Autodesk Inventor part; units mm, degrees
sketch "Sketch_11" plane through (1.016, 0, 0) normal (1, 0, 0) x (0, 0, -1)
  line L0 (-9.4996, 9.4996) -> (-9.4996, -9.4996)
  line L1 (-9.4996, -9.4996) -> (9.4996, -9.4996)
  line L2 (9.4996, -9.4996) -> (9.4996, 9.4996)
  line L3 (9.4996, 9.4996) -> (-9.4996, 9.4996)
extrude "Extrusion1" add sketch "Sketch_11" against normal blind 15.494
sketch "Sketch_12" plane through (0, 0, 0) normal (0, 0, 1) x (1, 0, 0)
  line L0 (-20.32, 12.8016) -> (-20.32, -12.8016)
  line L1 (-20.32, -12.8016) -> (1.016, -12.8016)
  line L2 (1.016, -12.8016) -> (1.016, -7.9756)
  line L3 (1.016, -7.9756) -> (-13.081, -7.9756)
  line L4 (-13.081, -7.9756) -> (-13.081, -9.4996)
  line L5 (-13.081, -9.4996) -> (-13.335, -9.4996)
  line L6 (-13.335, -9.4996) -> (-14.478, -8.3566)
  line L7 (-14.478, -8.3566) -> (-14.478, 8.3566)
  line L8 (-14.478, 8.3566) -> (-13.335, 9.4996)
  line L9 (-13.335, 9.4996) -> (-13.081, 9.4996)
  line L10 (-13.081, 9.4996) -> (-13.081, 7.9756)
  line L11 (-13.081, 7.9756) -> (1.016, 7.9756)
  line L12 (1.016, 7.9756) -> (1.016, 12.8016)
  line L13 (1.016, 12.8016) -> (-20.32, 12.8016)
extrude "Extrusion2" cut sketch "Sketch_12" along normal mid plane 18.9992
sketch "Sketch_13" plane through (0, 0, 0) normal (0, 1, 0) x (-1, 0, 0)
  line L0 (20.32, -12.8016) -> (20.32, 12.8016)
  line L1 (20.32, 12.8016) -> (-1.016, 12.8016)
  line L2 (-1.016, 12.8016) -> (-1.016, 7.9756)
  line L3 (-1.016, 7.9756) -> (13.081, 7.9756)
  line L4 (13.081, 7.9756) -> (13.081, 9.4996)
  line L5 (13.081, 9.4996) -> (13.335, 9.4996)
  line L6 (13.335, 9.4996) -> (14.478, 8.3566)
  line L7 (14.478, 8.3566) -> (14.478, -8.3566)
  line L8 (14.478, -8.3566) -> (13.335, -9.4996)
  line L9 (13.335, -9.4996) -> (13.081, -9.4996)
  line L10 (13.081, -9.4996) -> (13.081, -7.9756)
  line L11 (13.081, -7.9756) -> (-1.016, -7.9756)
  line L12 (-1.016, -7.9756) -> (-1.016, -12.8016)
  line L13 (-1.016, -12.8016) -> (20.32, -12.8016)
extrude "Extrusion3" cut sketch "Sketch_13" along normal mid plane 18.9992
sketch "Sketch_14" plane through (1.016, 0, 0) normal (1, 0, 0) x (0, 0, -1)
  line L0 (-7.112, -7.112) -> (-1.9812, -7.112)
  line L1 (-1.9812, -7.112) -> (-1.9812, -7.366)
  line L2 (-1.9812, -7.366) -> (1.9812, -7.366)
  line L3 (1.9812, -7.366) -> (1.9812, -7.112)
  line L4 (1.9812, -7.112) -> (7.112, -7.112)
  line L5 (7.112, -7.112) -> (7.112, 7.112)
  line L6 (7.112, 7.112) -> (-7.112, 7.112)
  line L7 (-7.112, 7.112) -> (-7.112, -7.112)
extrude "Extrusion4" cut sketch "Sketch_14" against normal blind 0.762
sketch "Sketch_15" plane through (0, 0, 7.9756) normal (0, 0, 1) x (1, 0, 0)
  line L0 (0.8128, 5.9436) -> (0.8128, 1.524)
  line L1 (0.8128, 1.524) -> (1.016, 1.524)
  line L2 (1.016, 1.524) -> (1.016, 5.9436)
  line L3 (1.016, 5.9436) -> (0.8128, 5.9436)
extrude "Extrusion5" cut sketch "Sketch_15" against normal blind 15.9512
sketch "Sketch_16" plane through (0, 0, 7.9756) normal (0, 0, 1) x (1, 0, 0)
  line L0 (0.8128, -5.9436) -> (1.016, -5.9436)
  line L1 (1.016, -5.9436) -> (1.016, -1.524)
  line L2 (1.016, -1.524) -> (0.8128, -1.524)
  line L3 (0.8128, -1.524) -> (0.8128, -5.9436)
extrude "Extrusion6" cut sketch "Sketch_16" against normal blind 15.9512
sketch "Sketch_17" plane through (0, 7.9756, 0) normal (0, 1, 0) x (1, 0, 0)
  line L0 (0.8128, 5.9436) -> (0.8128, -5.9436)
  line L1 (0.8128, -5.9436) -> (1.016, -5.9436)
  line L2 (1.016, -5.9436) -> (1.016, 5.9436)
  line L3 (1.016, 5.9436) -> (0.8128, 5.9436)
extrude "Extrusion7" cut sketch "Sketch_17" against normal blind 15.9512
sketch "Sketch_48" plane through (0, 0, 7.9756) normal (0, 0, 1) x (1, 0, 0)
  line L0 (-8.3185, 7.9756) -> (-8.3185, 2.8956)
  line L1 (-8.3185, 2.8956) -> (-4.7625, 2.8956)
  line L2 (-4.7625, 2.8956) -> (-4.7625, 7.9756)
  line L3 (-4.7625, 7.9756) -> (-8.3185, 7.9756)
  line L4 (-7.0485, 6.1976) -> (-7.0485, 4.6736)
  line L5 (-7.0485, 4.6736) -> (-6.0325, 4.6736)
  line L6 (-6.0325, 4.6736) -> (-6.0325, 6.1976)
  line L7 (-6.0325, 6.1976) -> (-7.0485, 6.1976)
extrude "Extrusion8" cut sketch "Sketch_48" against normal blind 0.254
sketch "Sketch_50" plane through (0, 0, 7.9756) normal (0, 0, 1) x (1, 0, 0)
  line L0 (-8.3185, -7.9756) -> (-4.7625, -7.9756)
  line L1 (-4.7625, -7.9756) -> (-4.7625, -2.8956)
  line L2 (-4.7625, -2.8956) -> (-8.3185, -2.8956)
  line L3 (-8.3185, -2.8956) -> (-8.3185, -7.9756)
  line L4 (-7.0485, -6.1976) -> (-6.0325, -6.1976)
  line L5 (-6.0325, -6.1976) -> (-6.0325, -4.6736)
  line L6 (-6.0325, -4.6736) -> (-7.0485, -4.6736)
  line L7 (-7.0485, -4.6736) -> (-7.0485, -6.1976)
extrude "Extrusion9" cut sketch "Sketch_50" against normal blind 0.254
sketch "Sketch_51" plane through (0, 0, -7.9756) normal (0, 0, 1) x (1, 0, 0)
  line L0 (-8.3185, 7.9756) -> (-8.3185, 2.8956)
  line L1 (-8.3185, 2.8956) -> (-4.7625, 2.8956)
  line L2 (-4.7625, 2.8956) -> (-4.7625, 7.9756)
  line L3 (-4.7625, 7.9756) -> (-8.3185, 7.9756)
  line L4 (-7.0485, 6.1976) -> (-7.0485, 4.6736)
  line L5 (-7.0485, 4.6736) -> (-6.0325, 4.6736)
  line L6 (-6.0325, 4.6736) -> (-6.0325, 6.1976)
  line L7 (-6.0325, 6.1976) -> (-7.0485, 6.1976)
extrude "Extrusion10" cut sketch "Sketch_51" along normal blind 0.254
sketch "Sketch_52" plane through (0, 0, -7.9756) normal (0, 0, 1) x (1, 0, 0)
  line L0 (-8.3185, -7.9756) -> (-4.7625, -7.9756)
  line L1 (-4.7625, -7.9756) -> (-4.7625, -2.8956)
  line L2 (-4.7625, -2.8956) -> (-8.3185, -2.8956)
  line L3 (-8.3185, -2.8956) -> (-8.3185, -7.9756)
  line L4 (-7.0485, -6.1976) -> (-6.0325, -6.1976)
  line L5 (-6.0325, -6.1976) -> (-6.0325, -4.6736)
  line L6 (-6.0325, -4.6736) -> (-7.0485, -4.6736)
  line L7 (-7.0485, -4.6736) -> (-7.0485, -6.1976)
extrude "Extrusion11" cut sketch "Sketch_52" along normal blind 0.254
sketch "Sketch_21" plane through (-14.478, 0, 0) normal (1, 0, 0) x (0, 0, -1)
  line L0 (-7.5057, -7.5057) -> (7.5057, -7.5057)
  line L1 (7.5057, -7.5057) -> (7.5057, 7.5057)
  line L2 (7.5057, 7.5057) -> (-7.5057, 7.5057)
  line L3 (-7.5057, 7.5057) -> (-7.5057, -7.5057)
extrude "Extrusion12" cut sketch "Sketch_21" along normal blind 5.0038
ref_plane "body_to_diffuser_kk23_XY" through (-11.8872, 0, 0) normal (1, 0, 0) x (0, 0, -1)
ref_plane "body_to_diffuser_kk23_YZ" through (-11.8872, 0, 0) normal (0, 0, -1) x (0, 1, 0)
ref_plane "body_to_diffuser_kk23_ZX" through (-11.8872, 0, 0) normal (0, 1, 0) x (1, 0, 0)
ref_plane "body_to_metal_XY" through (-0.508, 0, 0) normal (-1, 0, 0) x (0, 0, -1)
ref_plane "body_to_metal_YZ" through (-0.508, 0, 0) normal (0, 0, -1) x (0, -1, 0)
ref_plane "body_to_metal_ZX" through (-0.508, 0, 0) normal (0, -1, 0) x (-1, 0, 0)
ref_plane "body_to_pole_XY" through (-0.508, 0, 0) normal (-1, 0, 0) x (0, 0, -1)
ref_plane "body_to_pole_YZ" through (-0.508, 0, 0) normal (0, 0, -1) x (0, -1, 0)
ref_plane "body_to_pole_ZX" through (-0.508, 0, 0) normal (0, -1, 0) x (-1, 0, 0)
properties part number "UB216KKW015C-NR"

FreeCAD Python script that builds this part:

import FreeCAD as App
import Part
import Sketcher
from FreeCAD import Vector
Q = App.Units.Quantity


def add_polygon(sketch, points):
    """Adds a closed chain of lines whose ends are joined by coincident constraints."""
    first, n = sketch.GeometryCount, len(points)
    for a, b in zip(points, points[1:] + points[:1]):
        sketch.addGeometry(Part.LineSegment(App.Vector(*a, 0), App.Vector(*b, 0)), False)
    for i in range(n):
        sketch.addConstraint(Sketcher.Constraint("Coincident", first + i, 2, first + (i + 1) % n, 1))

doc = App.newDocument("Part")
params = doc.addObject("Spreadsheet::Sheet", "Params")
for row, (alias, value) in enumerate([
    ("sketch1_width", "0.748 in"),
    ("pad1_length", "0.61 in"),
    ("sketch2_width", "0.84 in"),
    ("sketch2_width2", "0.01 in"),
    ("sketch2_height", "0.19 in"),
    ("sketch2_height2", "0.06 in"),
    ("sketch2_width3", "0.555 in"),
    ("pocket1_length", "0.748 in"),
    ("sketch3_width", "0.84 in"),
    ("sketch3_width2", "0.01 in"),
    ("sketch3_height", "0.19 in"),
    ("sketch3_height2", "0.06 in"),
    ("sketch3_width3", "0.555 in"),
    ("pocket2_length", "0.748 in"),
    ("sketch4_width", "0.56 in"),
    ("sketch4_width2", "0.01 in"),
    ("sketch4_height", "0.202 in"),
    ("pocket3_length", "0.03 in"),
    ("sketch5_width", "0.008 in"),
    ("sketch5_height", "0.174 in"),
    ("pocket4_length", "0.628 in"),
    ("sketch6_width", "0.008 in"),
    ("sketch6_height", "0.174 in"),
    ("pocket5_length", "0.628 in"),
    ("sketch7_width", "0.008 in"),
    ("sketch7_height", "0.468 in"),
    ("pocket6_length", "0.628 in"),
    ("sketch8_height", "0.2 in"),
    ("sketch8_width", "0.14 in"),
    ("sketch8_width2", "0.04 in"),
    ("sketch8_height2", "0.06 in"),
    ("pocket7_length", "0.01 in"),
    ("sketch9_height", "0.2 in"),
    ("sketch9_width", "0.14 in"),
    ("sketch9_width2", "0.04 in"),
    ("sketch9_height2", "0.06 in"),
    ("pocket8_length", "0.01 in"),
    ("sketch10_height", "0.2 in"),
    ("sketch10_width", "0.14 in"),
    ("sketch10_width2", "0.04 in"),
    ("sketch10_height2", "0.06 in"),
    ("pocket9_length", "0.01 in"),
    ("sketch11_height", "0.2 in"),
    ("sketch11_width", "0.14 in"),
    ("sketch11_width2", "0.04 in"),
    ("sketch11_height2", "0.06 in"),
    ("pocket10_length", "0.01 in"),
    ("sketch12_width", "0.591 in"),
    ("pocket11_length", "0.197 in"),
], start=1):
    params.set(f"A{row}", alias)
    params.set(f"B{row}", "=" + value)
    params.setAlias(f"B{row}", alias)

body = doc.addObject("PartDesign::Body", "Body")

sketch1 = body.newObject("Sketcher::SketchObject", "Sketch")
sketch1.AttachmentSupport = (doc.getObject("YZ_Plane"), [""])
sketch1.MapMode = "FlatFace"
sketch1.AttachmentOffset = App.Placement(Vector(0, 0, 0.04 * 25.4), App.Rotation())
add_polygon(sketch1, [(9, -9), (9, 9), (-9, 9), (-9, -9)])
sketch1.addConstraint(Sketcher.Constraint("Vertical", 0))
sketch1.addConstraint(Sketcher.Constraint("Horizontal", 1))
sketch1.addConstraint(Sketcher.Constraint("Vertical", 2))
sketch1.addConstraint(Sketcher.Constraint("Horizontal", 3))
sketch1.addConstraint(Sketcher.Constraint("Symmetric", 0, 2, 2, 2, -1, 1))
sketch1.addConstraint(Sketcher.Constraint("Equal", 3, 0))
sketch1.addConstraint(Sketcher.Constraint("DistanceX", 1, 2, 1, 1, Q("0.748 in")))
sketch1.setExpression("Constraints[10]", "Params.sketch1_width")
pad1 = body.newObject("PartDesign::Pad", "Pad")
pad1.Profile = sketch1
pad1.setExpression("Length", "Params.pad1_length")
pad1.Reversed = True

sketch2 = body.newObject("Sketcher::SketchObject", "Sketch001")
sketch2.AttachmentSupport = (doc.getObject("XY_Plane"), [""])
sketch2.MapMode = "FlatFace"
add_polygon(sketch2, [(1.02, 12.8), (-20.32, 12.8), (-20.32, -12.8), (1.02, -12.8), (1.02, -7.98), (-13.08, -7.98), (-13.08, -9.5), (-13.34, -9.5), (-14.48, -8.36), (-14.48, 8.36), (-13.34, 9.5), (-13.08, 9.5), (-13.08, 7.98), (1.02, 7.98)])
sketch2.addConstraint(Sketcher.Constraint("Horizontal", 0))
sketch2.addConstraint(Sketcher.Constraint("Vertical", 1))
sketch2.addConstraint(Sketcher.Constraint("Horizontal", 2))
sketch2.addConstraint(Sketcher.Constraint("Vertical", 3))
sketch2.addConstraint(Sketcher.Constraint("Horizontal", 4))
sketch2.addConstraint(Sketcher.Constraint("Vertical", 5))
sketch2.addConstraint(Sketcher.Constraint("Horizontal", 6))
sketch2.addConstraint(Sketcher.Constraint("Vertical", 8))
sketch2.addConstraint(Sketcher.Constraint("Horizontal", 10))
sketch2.addConstraint(Sketcher.Constraint("Vertical", 11))
sketch2.addConstraint(Sketcher.Constraint("Horizontal", 12))
sketch2.addConstraint(Sketcher.Constraint("Vertical", 13))
sketch2.addConstraint(Sketcher.Constraint("Symmetric", 6, 2, 9, 2, -1))
sketch2.addConstraint(Sketcher.Constraint("Symmetric", 4, 2, 11, 2, -1))
sketch2.addConstraint(Sketcher.Constraint("Symmetric", 2, 2, 13, 2, -1))
sketch2.addConstraint(Sketcher.Constraint("Perpendicular", 7, 9))
sketch2.addConstraint(Sketcher.Constraint("Equal", 7, 9))
sketch2.addConstraint(Sketcher.Constraint("DistanceX", 0, 2, 0, 1, Q("0.84 in")))
sketch2.addConstraint(Sketcher.Constraint("DistanceX", 6, 2, 6, 1, Q("0.01 in")))
sketch2.addConstraint(Sketcher.Constraint("DistanceY", 3, 1, 3, 2, Q("0.19 in")))
sketch2.addConstraint(Sketcher.Constraint("DistanceY", 5, 2, 5, 1, Q("0.06 in")))
sketch2.addConstraint(Sketcher.Constraint("DistanceX", 0, 2, -1, 1, Q("0.8 in")))
sketch2.addConstraint(Sketcher.Constraint("DistanceX", 4, 2, 4, 1, Q("0.555 in")))
sketch2.addConstraint(Sketcher.Constraint("DistanceY", 1, 2, 1, 1, Q("1.008 in")))
sketch2.addConstraint(Sketcher.Constraint("DistanceY", 8, 1, 8, 2, Q("0.658 in")))
sketch2.setExpression("Constraints[31]", "Params.sketch2_width")
sketch2.setExpression("Constraints[32]", "Params.sketch2_width2")
sketch2.setExpression("Constraints[33]", "Params.sketch2_height")
sketch2.setExpression("Constraints[34]", "Params.sketch2_height2")
sketch2.setExpression("Constraints[36]", "Params.sketch2_width3")
pocket1 = body.newObject("PartDesign::Pocket", "Pocket")
pocket1.Profile = sketch2
pocket1.setExpression("Length", "Params.pocket1_length")
pocket1.Midplane = True

sketch3 = body.newObject("Sketcher::SketchObject", "Sketch002")
sketch3.AttachmentSupport = (doc.getObject("XZ_Plane"), [""])
sketch3.MapMode = "FlatFace"
add_polygon(sketch3, [(1.02, -12.8), (-20.32, -12.8), (-20.32, 12.8), (1.02, 12.8), (1.02, 7.98), (-13.08, 7.98), (-13.08, 9.5), (-13.34, 9.5), (-14.48, 8.36), (-14.48, -8.36), (-13.34, -9.5), (-13.08, -9.5), (-13.08, -7.98), (1.02, -7.98)])
sketch3.addConstraint(Sketcher.Constraint("Horizontal", 0))
sketch3.addConstraint(Sketcher.Constraint("Vertical", 1))
sketch3.addConstraint(Sketcher.Constraint("Horizontal", 2))
sketch3.addConstraint(Sketcher.Constraint("Vertical", 3))
sketch3.addConstraint(Sketcher.Constraint("Horizontal", 4))
sketch3.addConstraint(Sketcher.Constraint("Vertical", 5))
sketch3.addConstraint(Sketcher.Constraint("Horizontal", 6))
sketch3.addConstraint(Sketcher.Constraint("Vertical", 8))
sketch3.addConstraint(Sketcher.Constraint("Horizontal", 10))
sketch3.addConstraint(Sketcher.Constraint("Vertical", 11))
sketch3.addConstraint(Sketcher.Constraint("Horizontal", 12))
sketch3.addConstraint(Sketcher.Constraint("Vertical", 13))
sketch3.addConstraint(Sketcher.Constraint("Symmetric", 6, 2, 9, 2, -1))
sketch3.addConstraint(Sketcher.Constraint("Symmetric", 4, 2, 11, 2, -1))
sketch3.addConstraint(Sketcher.Constraint("Symmetric", 2, 2, 13, 2, -1))
sketch3.addConstraint(Sketcher.Constraint("Perpendicular", 7, 9))
sketch3.addConstraint(Sketcher.Constraint("Equal", 7, 9))
sketch3.addConstraint(Sketcher.Constraint("DistanceX", 0, 2, 0, 1, Q("0.84 in")))
sketch3.addConstraint(Sketcher.Constraint("DistanceX", 6, 2, 6, 1, Q("0.01 in")))
sketch3.addConstraint(Sketcher.Constraint("DistanceY", 3, 2, 3, 1, Q("0.19 in")))
sketch3.addConstraint(Sketcher.Constraint("DistanceY", 5, 1, 5, 2, Q("0.06 in")))
sketch3.addConstraint(Sketcher.Constraint("DistanceX", 0, 2, -1, 1, Q("0.8 in")))
sketch3.addConstraint(Sketcher.Constraint("DistanceX", 4, 2, 4, 1, Q("0.555 in")))
sketch3.addConstraint(Sketcher.Constraint("DistanceY", 1, 1, 1, 2, Q("1.008 in")))
sketch3.addConstraint(Sketcher.Constraint("DistanceY", 8, 2, 8, 1, Q("0.658 in")))
sketch3.setExpression("Constraints[31]", "Params.sketch3_width")
sketch3.setExpression("Constraints[32]", "Params.sketch3_width2")
sketch3.setExpression("Constraints[33]", "Params.sketch3_height")
sketch3.setExpression("Constraints[34]", "Params.sketch3_height2")
sketch3.setExpression("Constraints[36]", "Params.sketch3_width3")
pocket2 = body.newObject("PartDesign::Pocket", "Pocket001")
pocket2.Profile = sketch3
pocket2.setExpression("Length", "Params.pocket2_length")
pocket2.Midplane = True

sketch4 = body.newObject("Sketcher::SketchObject", "Sketch003")
sketch4.AttachmentSupport = (doc.getObject("YZ_Plane"), [""])
sketch4.MapMode = "FlatFace"
sketch4.AttachmentOffset = App.Placement(Vector(0, 0, 0.04 * 25.4), App.Rotation())
add_polygon(sketch4, [(7.11, 7.11), (-7.11, 7.11), (-7.11, 1.98), (-7.37, 1.98), (-7.37, -1.98), (-7.11, -1.98), (-7.11, -7.11), (7.11, -7.11)])
sketch4.addConstraint(Sketcher.Constraint("Horizontal", 0))
sketch4.addConstraint(Sketcher.Constraint("Vertical", 1))
sketch4.addConstraint(Sketcher.Constraint("Horizontal", 2))
sketch4.addConstraint(Sketcher.Constraint("Vertical", 3))
sketch4.addConstraint(Sketcher.Constraint("Horizontal", 4))
sketch4.addConstraint(Sketcher.Constraint("Vertical", 5))
sketch4.addConstraint(Sketcher.Constraint("Horizontal", 6))
sketch4.addConstraint(Sketcher.Constraint("Vertical", 7))
sketch4.addConstraint(Sketcher.Constraint("Symmetric", 0, 2, 6, 2, -1, 1))
sketch4.addConstraint(Sketcher.Constraint("Symmetric", 1, 2, 4, 2, -1))
sketch4.addConstraint(Sketcher.Constraint("Equal", 6, 7))
sketch4.addConstraint(Sketcher.Constraint("DistanceX", 0, 2, 0, 1, Q("0.56 in")))
sketch4.addConstraint(Sketcher.Constraint("DistanceX", 2, 2, 2, 1, Q("0.01 in")))
sketch4.addConstraint(Sketcher.Constraint("DistanceY", 1, 2, 1, 1, Q("0.202 in")))
sketch4.setExpression("Constraints[19]", "Params.sketch4_width")
sketch4.setExpression("Constraints[20]", "Params.sketch4_width2")
sketch4.setExpression("Constraints[21]", "Params.sketch4_height")
pocket3 = body.newObject("PartDesign::Pocket", "Pocket002")
pocket3.Profile = sketch4
pocket3.setExpression("Length", "Params.pocket3_length")

sketch5 = body.newObject("Sketcher::SketchObject", "Sketch004")
sketch5.AttachmentSupport = (doc.getObject("XY_Plane"), [""])
sketch5.MapMode = "FlatFace"
sketch5.AttachmentOffset = App.Placement(Vector(0, 0, 0.314 * 25.4), App.Rotation())
add_polygon(sketch5, [(1.02, 5.94), (0.81, 5.94), (0.81, 1.52), (1.02, 1.52)])
sketch5.addConstraint(Sketcher.Constraint("Horizontal", 0))
sketch5.addConstraint(Sketcher.Constraint("Vertical", 1))
sketch5.addConstraint(Sketcher.Constraint("Horizontal", 2))
sketch5.addConstraint(Sketcher.Constraint("Vertical", 3))
sketch5.addConstraint(Sketcher.Constraint("DistanceX", 0, 2, 0, 1, Q("0.008 in")))
sketch5.addConstraint(Sketcher.Constraint("DistanceY", 1, 2, 1, 1, Q("0.174 in")))
sketch5.addConstraint(Sketcher.Constraint("DistanceY", -1, 1, 1, 2, Q("0.06 in")))
sketch5.addConstraint(Sketcher.Constraint("DistanceX", -1, 1, 2, 2, Q("0.04 in")))
sketch5.setExpression("Constraints[8]", "Params.sketch5_width")
sketch5.setExpression("Constraints[9]", "Params.sketch5_height")
pocket4 = body.newObject("PartDesign::Pocket", "Pocket003")
pocket4.Profile = sketch5
pocket4.setExpression("Length", "Params.pocket4_length")

sketch6 = body.newObject("Sketcher::SketchObject", "Sketch005")
sketch6.AttachmentSupport = (doc.getObject("XY_Plane"), [""])
sketch6.MapMode = "FlatFace"
sketch6.AttachmentOffset = App.Placement(Vector(0, 0, 0.314 * 25.4), App.Rotation())
add_polygon(sketch6, [(0.81, -1.52), (0.81, -5.94), (1.02, -5.94), (1.02, -1.52)])
sketch6.addConstraint(Sketcher.Constraint("Vertical", 0))
sketch6.addConstraint(Sketcher.Constraint("Horizontal", 1))
sketch6.addConstraint(Sketcher.Constraint("Vertical", 2))
sketch6.addConstraint(Sketcher.Constraint("Horizontal", 3))
sketch6.addConstraint(Sketcher.Constraint("DistanceX", 1, 1, 1, 2, Q("0.008 in")))
sketch6.addConstraint(Sketcher.Constraint("DistanceY", 0, 2, 0, 1, Q("0.174 in")))
sketch6.addConstraint(Sketcher.Constraint("DistanceX", -1, 1, 1, 2, Q("0.04 in")))
sketch6.addConstraint(Sketcher.Constraint("DistanceY", 2, 2, -1, 1, Q("0.06 in")))
sketch6.setExpression("Constraints[8]", "Params.sketch6_width")
sketch6.setExpression("Constraints[9]", "Params.sketch6_height")
pocket5 = body.newObject("PartDesign::Pocket", "Pocket004")
pocket5.Profile = sketch6
pocket5.setExpression("Length", "Params.pocket5_length")

sketch7 = body.newObject("Sketcher::SketchObject", "Sketch006")
sketch7.AttachmentSupport = (doc.getObject("XZ_Plane"), [""])
sketch7.MapMode = "FlatFace"
sketch7.AttachmentOffset = App.Placement(Vector(0, 0, -0.314 * 25.4), App.Rotation())
add_polygon(sketch7, [(1.02, -5.94), (0.81, -5.94), (0.81, 5.94), (1.02, 5.94)])
sketch7.addConstraint(Sketcher.Constraint("Horizontal", 0))
sketch7.addConstraint(Sketcher.Constraint("Vertical", 1))
sketch7.addConstraint(Sketcher.Constraint("Horizontal", 2))
sketch7.addConstraint(Sketcher.Constraint("Vertical", 3))
sketch7.addConstraint(Sketcher.Constraint("DistanceX", 0, 2, 0, 1, Q("0.008 in")))
sketch7.addConstraint(Sketcher.Constraint("DistanceY", 1, 1, 1, 2, Q("0.468 in")))
sketch7.addConstraint(Sketcher.Constraint("DistanceX", -1, 1, 2, 2, Q("0.04 in")))
sketch7.addConstraint(Sketcher.Constraint("DistanceY", 0, 2, -1, 1, Q("0.234 in")))
sketch7.setExpression("Constraints[8]", "Params.sketch7_width")
sketch7.setExpression("Constraints[9]", "Params.sketch7_height")
pocket6 = body.newObject("PartDesign::Pocket", "Pocket005")
pocket6.Profile = sketch7
pocket6.setExpression("Length", "Params.pocket6_length")
pocket6.Reversed = True

sketch8 = body.newObject("Sketcher::SketchObject", "Sketch007")
sketch8.AttachmentSupport = (doc.getObject("XY_Plane"), [""])
sketch8.MapMode = "FlatFace"
sketch8.AttachmentOffset = App.Placement(Vector(0, 0, 0.314 * 25.4), App.Rotation())
add_polygon(sketch8, [(-4.8, 8), (-8.3, 8), (-8.3, 2.9), (-4.8, 2.9)])
add_polygon(sketch8, [(-7, 4.7), (-7, 6.2), (-6, 6.2), (-6, 4.7)])
sketch8.addConstraint(Sketcher.Constraint("Horizontal", 0))
sketch8.addConstraint(Sketcher.Constraint("Vertical", 1))
sketch8.addConstraint(Sketcher.Constraint("Horizontal", 2))
sketch8.addConstraint(Sketcher.Constraint("Vertical", 3))
sketch8.addConstraint(Sketcher.Constraint("Vertical", 4))
sketch8.addConstraint(Sketcher.Constraint("Horizontal", 5))
sketch8.addConstraint(Sketcher.Constraint("Vertical", 6))
sketch8.addConstraint(Sketcher.Constraint("Horizontal", 7))
sketch8.addConstraint(Sketcher.Constraint("DistanceY", 1, 2, 1, 1, Q("0.2 in")))
sketch8.addConstraint(Sketcher.Constraint("DistanceX", 0, 2, 0, 1, Q("0.14 in")))
sketch8.addConstraint(Sketcher.Constraint("DistanceX", 5, 1, 5, 2, Q("0.04 in")))
sketch8.addConstraint(Sketcher.Constraint("DistanceY", 4, 1, 4, 2, Q("0.06 in")))
sketch8.addConstraint(Sketcher.Constraint("DistanceX", 0, 2, 4, 2, Q("0.05 in")))
sketch8.addConstraint(Sketcher.Constraint("DistanceY", 4, 2, 0, 2, Q("0.07 in")))
sketch8.addConstraint(Sketcher.Constraint("DistanceY", -1, 1, 0, 2, Q("0.314 in")))
sketch8.addConstraint(Sketcher.Constraint("DistanceX", 2, 2, -1, 1, Q("0.1875 in")))
sketch8.setExpression("Constraints[16]", "Params.sketch8_height")
sketch8.setExpression("Constraints[17]", "Params.sketch8_width")
sketch8.setExpression("Constraints[18]", "Params.sketch8_width2")
sketch8.setExpression("Constraints[19]", "Params.sketch8_height2")
pocket7 = body.newObject("PartDesign::Pocket", "Pocket006")
pocket7.Profile = sketch8
pocket7.setExpression("Length", "Params.pocket7_length")

sketch9 = body.newObject("Sketcher::SketchObject", "Sketch008")
sketch9.AttachmentSupport = (doc.getObject("XY_Plane"), [""])
sketch9.MapMode = "FlatFace"
sketch9.AttachmentOffset = App.Placement(Vector(0, 0, 0.314 * 25.4), App.Rotation())
add_polygon(sketch9, [(-8.3, -2.9), (-8.3, -8), (-4.8, -8), (-4.8, -2.9)])
add_polygon(sketch9, [(-6, -6.2), (-7, -6.2), (-7, -4.7), (-6, -4.7)])
sketch9.addConstraint(Sketcher.Constraint("Vertical", 0))
sketch9.addConstraint(Sketcher.Constraint("Horizontal", 1))
sketch9.addConstraint(Sketcher.Constraint("Vertical", 2))
sketch9.addConstraint(Sketcher.Constraint("Horizontal", 3))
sketch9.addConstraint(Sketcher.Constraint("Horizontal", 4))
sketch9.addConstraint(Sketcher.Constraint("Vertical", 5))
sketch9.addConstraint(Sketcher.Constraint("Horizontal", 6))
sketch9.addConstraint(Sketcher.Constraint("Vertical", 7))
sketch9.addConstraint(Sketcher.Constraint("DistanceY", 0, 2, 0, 1, Q("0.2 in")))
sketch9.addConstraint(Sketcher.Constraint("DistanceX", 1, 1, 1, 2, Q("0.14 in")))
sketch9.addConstraint(Sketcher.Constraint("DistanceX", 4, 2, 4, 1, Q("0.04 in")))
sketch9.addConstraint(Sketcher.Constraint("DistanceY", 5, 1, 5, 2, Q("0.06 in")))
sketch9.addConstraint(Sketcher.Constraint("DistanceX", 0, 2, 4, 2, Q("0.05 in")))
sketch9.addConstraint(Sketcher.Constraint("DistanceY", 0, 2, 4, 2, Q("0.07 in")))
sketch9.addConstraint(Sketcher.Constraint("DistanceY", 0, 2, -1, 1, Q("0.314 in")))
sketch9.addConstraint(Sketcher.Constraint("DistanceX", 1, 2, -1, 1, Q("0.1875 in")))
sketch9.setExpression("Constraints[16]", "Params.sketch9_height")
sketch9.setExpression("Constraints[17]", "Params.sketch9_width")
sketch9.setExpression("Constraints[18]", "Params.sketch9_width2")
sketch9.setExpression("Constraints[19]", "Params.sketch9_height2")
pocket8 = body.newObject("PartDesign::Pocket", "Pocket007")
pocket8.Profile = sketch9
pocket8.setExpression("Length", "Params.pocket8_length")

sketch10 = body.newObject("Sketcher::SketchObject", "Sketch009")
sketch10.AttachmentSupport = (doc.getObject("XY_Plane"), [""])
sketch10.MapMode = "FlatFace"
sketch10.AttachmentOffset = App.Placement(Vector(0, 0, -0.314 * 25.4), App.Rotation())
add_polygon(sketch10, [(-4.8, 8), (-8.3, 8), (-8.3, 2.9), (-4.8, 2.9)])
add_polygon(sketch10, [(-7, 4.7), (-7, 6.2), (-6, 6.2), (-6, 4.7)])
sketch10.addConstraint(Sketcher.Constraint("Horizontal", 0))
sketch10.addConstraint(Sketcher.Constraint("Vertical", 1))
sketch10.addConstraint(Sketcher.Constraint("Horizontal", 2))
sketch10.addConstraint(Sketcher.Constraint("Vertical", 3))
sketch10.addConstraint(Sketcher.Constraint("Vertical", 4))
sketch10.addConstraint(Sketcher.Constraint("Horizontal", 5))
sketch10.addConstraint(Sketcher.Constraint("Vertical", 6))
sketch10.addConstraint(Sketcher.Constraint("Horizontal", 7))
sketch10.addConstraint(Sketcher.Constraint("DistanceY", 1, 2, 1, 1, Q("0.2 in")))
sketch10.addConstraint(Sketcher.Constraint("DistanceX", 0, 2, 0, 1, Q("0.14 in")))
sketch10.addConstraint(Sketcher.Constraint("DistanceX", 5, 1, 5, 2, Q("0.04 in")))
sketch10.addConstraint(Sketcher.Constraint("DistanceY", 4, 1, 4, 2, Q("0.06 in")))
sketch10.addConstraint(Sketcher.Constraint("DistanceX", 0, 2, 4, 2, Q("0.05 in")))
sketch10.addConstraint(Sketcher.Constraint("DistanceY", 4, 2, 0, 2, Q("0.07 in")))
sketch10.addConstraint(Sketcher.Constraint("DistanceY", -1, 1, 0, 2, Q("0.314 in")))
sketch10.addConstraint(Sketcher.Constraint("DistanceX", 2, 2, -1, 1, Q("0.1875 in")))
sketch10.setExpression("Constraints[16]", "Params.sketch10_height")
sketch10.setExpression("Constraints[17]", "Params.sketch10_width")
sketch10.setExpression("Constraints[18]", "Params.sketch10_width2")
sketch10.setExpression("Constraints[19]", "Params.sketch10_height2")
pocket9 = body.newObject("PartDesign::Pocket", "Pocket008")
pocket9.Profile = sketch10
pocket9.setExpression("Length", "Params.pocket9_length")
pocket9.Reversed = True

sketch11 = body.newObject("Sketcher::SketchObject", "Sketch010")
sketch11.AttachmentSupport = (doc.getObject("XY_Plane"), [""])
sketch11.MapMode = "FlatFace"
sketch11.AttachmentOffset = App.Placement(Vector(0, 0, -0.314 * 25.4), App.Rotation())
add_polygon(sketch11, [(-8.3, -2.9), (-8.3, -8), (-4.8, -8), (-4.8, -2.9)])
add_polygon(sketch11, [(-6, -6.2), (-7, -6.2), (-7, -4.7), (-6, -4.7)])
sketch11.addConstraint(Sketcher.Constraint("Vertical", 0))
sketch11.addConstraint(Sketcher.Constraint("Horizontal", 1))
sketch11.addConstraint(Sketcher.Constraint("Vertical", 2))
sketch11.addConstraint(Sketcher.Constraint("Horizontal", 3))
sketch11.addConstraint(Sketcher.Constraint("Horizontal", 4))
sketch11.addConstraint(Sketcher.Constraint("Vertical", 5))
sketch11.addConstraint(Sketcher.Constraint("Horizontal", 6))
sketch11.addConstraint(Sketcher.Constraint("Vertical", 7))
sketch11.addConstraint(Sketcher.Constraint("DistanceY", 0, 2, 0, 1, Q("0.2 in")))
sketch11.addConstraint(Sketcher.Constraint("DistanceX", 1, 1, 1, 2, Q("0.14 in")))
sketch11.addConstraint(Sketcher.Constraint("DistanceX", 4, 2, 4, 1, Q("0.04 in")))
sketch11.addConstraint(Sketcher.Constraint("DistanceY", 5, 1, 5, 2, Q("0.06 in")))
sketch11.addConstraint(Sketcher.Constraint("DistanceX", 0, 2, 4, 2, Q("0.05 in")))
sketch11.addConstraint(Sketcher.Constraint("DistanceY", 0, 2, 4, 2, Q("0.07 in")))
sketch11.addConstraint(Sketcher.Constraint("DistanceY", 0, 2, -1, 1, Q("0.314 in")))
sketch11.addConstraint(Sketcher.Constraint("DistanceX", 1, 2, -1, 1, Q("0.1875 in")))
sketch11.setExpression("Constraints[16]", "Params.sketch11_height")
sketch11.setExpression("Constraints[17]", "Params.sketch11_width")
sketch11.setExpression("Constraints[18]", "Params.sketch11_width2")
sketch11.setExpression("Constraints[19]", "Params.sketch11_height2")
pocket10 = body.newObject("PartDesign::Pocket", "Pocket009")
pocket10.Profile = sketch11
pocket10.setExpression("Length", "Params.pocket10_length")
pocket10.Reversed = True

sketch12 = body.newObject("Sketcher::SketchObject", "Sketch011")
sketch12.AttachmentSupport = (doc.getObject("YZ_Plane"), [""])
sketch12.MapMode = "FlatFace"
sketch12.AttachmentOffset = App.Placement(Vector(0, 0, -0.57 * 25.4), App.Rotation())
add_polygon(sketch12, [(8, 8), (-8, 8), (-8, -8), (8, -8)])
sketch12.addConstraint(Sketcher.Constraint("Horizontal", 0))
sketch12.addConstraint(Sketcher.Constraint("Vertical", 1))
sketch12.addConstraint(Sketcher.Constraint("Horizontal", 2))
sketch12.addConstraint(Sketcher.Constraint("Vertical", 3))
sketch12.addConstraint(Sketcher.Constraint("Symmetric", 0, 2, 2, 2, -1, 1))
sketch12.addConstraint(Sketcher.Constraint("Equal", 2, 1))
sketch12.addConstraint(Sketcher.Constraint("DistanceX", 0, 2, 0, 1, Q("0.591 in")))
sketch12.setExpression("Constraints[10]", "Params.sketch12_width")
pocket11 = body.newObject("PartDesign::Pocket", "Pocket010")
pocket11.Profile = sketch12
pocket11.setExpression("Length", "Params.pocket11_length")
pocket11.Reversed = True

doc.recompute()
